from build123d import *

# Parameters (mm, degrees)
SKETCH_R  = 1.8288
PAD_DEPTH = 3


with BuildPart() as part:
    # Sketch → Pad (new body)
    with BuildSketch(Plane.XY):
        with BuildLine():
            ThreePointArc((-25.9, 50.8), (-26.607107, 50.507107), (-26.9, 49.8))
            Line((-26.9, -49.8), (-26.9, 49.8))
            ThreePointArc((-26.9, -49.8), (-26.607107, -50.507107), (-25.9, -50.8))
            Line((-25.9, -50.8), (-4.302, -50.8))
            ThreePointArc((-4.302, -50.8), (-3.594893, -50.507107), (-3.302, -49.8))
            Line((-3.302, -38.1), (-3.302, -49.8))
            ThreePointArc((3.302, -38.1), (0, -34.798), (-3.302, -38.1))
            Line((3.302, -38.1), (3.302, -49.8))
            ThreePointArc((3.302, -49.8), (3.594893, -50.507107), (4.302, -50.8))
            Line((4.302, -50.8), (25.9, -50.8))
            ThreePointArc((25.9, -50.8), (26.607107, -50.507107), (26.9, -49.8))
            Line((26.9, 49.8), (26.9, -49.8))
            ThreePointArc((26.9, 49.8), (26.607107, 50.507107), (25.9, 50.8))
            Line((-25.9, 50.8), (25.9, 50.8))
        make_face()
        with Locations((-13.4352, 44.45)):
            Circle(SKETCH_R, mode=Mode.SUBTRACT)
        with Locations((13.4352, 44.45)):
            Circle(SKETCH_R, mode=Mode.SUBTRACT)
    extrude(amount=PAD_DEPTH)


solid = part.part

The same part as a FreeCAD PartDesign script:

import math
import FreeCAD as App
import Part
import Sketcher
Q = App.Units.Quantity

doc = App.newDocument("Part")
body = doc.addObject("PartDesign::Body", "Body")

# Sketch on XY plane
sketch1 = body.newObject("Sketcher::SketchObject", "Sketch")
sketch1.AttachmentSupport = (doc.getObject("XY_Plane"), [""])
sketch1.MapMode = "FlatFace"
sketch1.addGeometry(Part.ArcOfCircle(Part.Circle(App.Vector(-25.9, 49.8, 0), App.Vector(0, 0, 1), 1), math.radians(90), math.radians(180)), False)
sketch1.addGeometry(Part.LineSegment(App.Vector(-26.9, 49.8, 0), App.Vector(-26.9, -49.8, 0)), False)
sketch1.addGeometry(Part.ArcOfCircle(Part.Circle(App.Vector(-25.9, -49.8, 0), App.Vector(0, 0, 1), 1), math.radians(180), math.radians(270)), False)
sketch1.addGeometry(Part.LineSegment(App.Vector(-25.9, -50.8, 0), App.Vector(-4.3, -50.8, 0)), False)
sketch1.addGeometry(Part.ArcOfCircle(Part.Circle(App.Vector(-4.3, -49.8, 0), App.Vector(0, 0, 1), 1), math.radians(-90), math.radians(0)), False)
sketch1.addGeometry(Part.LineSegment(App.Vector(-3.3, -49.8, 0), App.Vector(-3.3, -38.1, 0)), False)
sketch1.addGeometry(Part.ArcOfCircle(Part.Circle(App.Vector(0, -38.1, 0), App.Vector(0, 0, 1), 3.3), math.radians(0), math.radians(180)), False)
sketch1.addGeometry(Part.LineSegment(App.Vector(3.3, -38.1, 0), App.Vector(3.3, -49.8, 0)), False)
sketch1.addGeometry(Part.ArcOfCircle(Part.Circle(App.Vector(4.3, -49.8, 0), App.Vector(0, 0, 1), 1), math.radians(180), math.radians(270)), False)
sketch1.addGeometry(Part.LineSegment(App.Vector(4.3, -50.8, 0), App.Vector(25.9, -50.8, 0)), False)
sketch1.addGeometry(Part.ArcOfCircle(Part.Circle(App.Vector(25.9, -49.8, 0), App.Vector(0, 0, 1), 1), math.radians(-90), math.radians(0)), False)
sketch1.addGeometry(Part.LineSegment(App.Vector(26.9, -49.8, 0), App.Vector(26.9, 49.8, 0)), False)
sketch1.addGeometry(Part.ArcOfCircle(Part.Circle(App.Vector(25.9, 49.8, 0), App.Vector(0, 0, 1), 1), math.radians(0), math.radians(90)), False)
sketch1.addGeometry(Part.LineSegment(App.Vector(25.9, 50.8, 0), App.Vector(-25.9, 50.8, 0)), False)
sketch1.addGeometry(Part.Circle(App.Vector(-13.4, 44.5, 0), App.Vector(0, 0, 1), 1.8), False)
sketch1.addGeometry(Part.Circle(App.Vector(13.4, 44.5, 0), App.Vector(0, 0, 1), 1.8), False)
sketch1.addConstraint(Sketcher.Constraint("Tangent", 0, 2, 1, 1))
sketch1.addConstraint(Sketcher.Constraint("Tangent", 1, 2, 2, 1))
sketch1.addConstraint(Sketcher.Constraint("Tangent", 2, 2, 3, 1))
sketch1.addConstraint(Sketcher.Constraint("Tangent", 3, 2, 4, 1))
sketch1.addConstraint(Sketcher.Constraint("Tangent", 4, 2, 5, 1))
sketch1.addConstraint(Sketcher.Constraint("Tangent", 5, 2, 6, 2))
sketch1.addConstraint(Sketcher.Constraint("Tangent", 6, 1, 7, 1))
sketch1.addConstraint(Sketcher.Constraint("Tangent", 7, 2, 8, 1))
sketch1.addConstraint(Sketcher.Constraint("Tangent", 8, 2, 9, 1))
sketch1.addConstraint(Sketcher.Constraint("Tangent", 9, 2, 10, 1))
sketch1.addConstraint(Sketcher.Constraint("Tangent", 10, 2, 11, 1))
sketch1.addConstraint(Sketcher.Constraint("Tangent", 11, 2, 12, 1))
sketch1.addConstraint(Sketcher.Constraint("Tangent", 12, 2, 13, 1))
sketch1.addConstraint(Sketcher.Constraint("Tangent", 13, 2, 0, 1))
sketch1.addConstraint(Sketcher.Constraint("Vertical", 1))
sketch1.addConstraint(Sketcher.Constraint("Horizontal", 3))
sketch1.addConstraint(Sketcher.Constraint("Vertical", 5))
sketch1.addConstraint(Sketcher.Constraint("Vertical", 7))
sketch1.addConstraint(Sketcher.Constraint("Horizontal", 9))
sketch1.addConstraint(Sketcher.Constraint("Vertical", 11))
sketch1.addConstraint(Sketcher.Constraint("Horizontal", 13))
sketch1.addConstraint(Sketcher.Constraint("Equal", 0, 2))
sketch1.addConstraint(Sketcher.Constraint("Equal", 2, 4))
sketch1.addConstraint(Sketcher.Constraint("Equal", 4, 8))
sketch1.addConstraint(Sketcher.Constraint("Equal", 8, 10))
sketch1.addConstraint(Sketcher.Constraint("Equal", 10, 12))
sketch1.addConstraint(Sketcher.Constraint("Equal", 14, 15))
sketch1.addConstraint(Sketcher.Constraint("Symmetric", 0, 3, 10, 3, -1, 1))
sketch1.addConstraint(Sketcher.Constraint("Symmetric", 4, 3, 8, 3, -2))
sketch1.addConstraint(Sketcher.Constraint("Symmetric", 14, 3, 15, 3, -2))
sketch1.addConstraint(Sketcher.Constraint("Radius", 0, Q("0.999999 mm")))
sketch1.addConstraint(Sketcher.Constraint("DistanceX", 13, 2, 13, 1, Q("51.8 mm")))
sketch1.addConstraint(Sketcher.Constraint("DistanceY", 1, 2, 1, 1, Q("99.6 mm")))
sketch1.addConstraint(Sketcher.Constraint("DistanceY", 5, 1, 5, 2, Q("11.7 mm")))
sketch1.addConstraint(Sketcher.Constraint("Radius", 6, Q("3.302 mm")))
sketch1.addConstraint(Sketcher.Constraint("Diameter", 14, Q("3.6576 mm")))
sketch1.addConstraint(Sketcher.Constraint("DistanceY", -1, 1, 14, 3, Q("44.45 mm")))
sketch1.addConstraint(Sketcher.Constraint("DistanceX", 14, 3, -1, 1, Q("13.4352 mm")))
pad1 = body.newObject("PartDesign::Pad", "Pad")
pad1.Profile = sketch1
pad1.Length = 3

doc.recompute()
